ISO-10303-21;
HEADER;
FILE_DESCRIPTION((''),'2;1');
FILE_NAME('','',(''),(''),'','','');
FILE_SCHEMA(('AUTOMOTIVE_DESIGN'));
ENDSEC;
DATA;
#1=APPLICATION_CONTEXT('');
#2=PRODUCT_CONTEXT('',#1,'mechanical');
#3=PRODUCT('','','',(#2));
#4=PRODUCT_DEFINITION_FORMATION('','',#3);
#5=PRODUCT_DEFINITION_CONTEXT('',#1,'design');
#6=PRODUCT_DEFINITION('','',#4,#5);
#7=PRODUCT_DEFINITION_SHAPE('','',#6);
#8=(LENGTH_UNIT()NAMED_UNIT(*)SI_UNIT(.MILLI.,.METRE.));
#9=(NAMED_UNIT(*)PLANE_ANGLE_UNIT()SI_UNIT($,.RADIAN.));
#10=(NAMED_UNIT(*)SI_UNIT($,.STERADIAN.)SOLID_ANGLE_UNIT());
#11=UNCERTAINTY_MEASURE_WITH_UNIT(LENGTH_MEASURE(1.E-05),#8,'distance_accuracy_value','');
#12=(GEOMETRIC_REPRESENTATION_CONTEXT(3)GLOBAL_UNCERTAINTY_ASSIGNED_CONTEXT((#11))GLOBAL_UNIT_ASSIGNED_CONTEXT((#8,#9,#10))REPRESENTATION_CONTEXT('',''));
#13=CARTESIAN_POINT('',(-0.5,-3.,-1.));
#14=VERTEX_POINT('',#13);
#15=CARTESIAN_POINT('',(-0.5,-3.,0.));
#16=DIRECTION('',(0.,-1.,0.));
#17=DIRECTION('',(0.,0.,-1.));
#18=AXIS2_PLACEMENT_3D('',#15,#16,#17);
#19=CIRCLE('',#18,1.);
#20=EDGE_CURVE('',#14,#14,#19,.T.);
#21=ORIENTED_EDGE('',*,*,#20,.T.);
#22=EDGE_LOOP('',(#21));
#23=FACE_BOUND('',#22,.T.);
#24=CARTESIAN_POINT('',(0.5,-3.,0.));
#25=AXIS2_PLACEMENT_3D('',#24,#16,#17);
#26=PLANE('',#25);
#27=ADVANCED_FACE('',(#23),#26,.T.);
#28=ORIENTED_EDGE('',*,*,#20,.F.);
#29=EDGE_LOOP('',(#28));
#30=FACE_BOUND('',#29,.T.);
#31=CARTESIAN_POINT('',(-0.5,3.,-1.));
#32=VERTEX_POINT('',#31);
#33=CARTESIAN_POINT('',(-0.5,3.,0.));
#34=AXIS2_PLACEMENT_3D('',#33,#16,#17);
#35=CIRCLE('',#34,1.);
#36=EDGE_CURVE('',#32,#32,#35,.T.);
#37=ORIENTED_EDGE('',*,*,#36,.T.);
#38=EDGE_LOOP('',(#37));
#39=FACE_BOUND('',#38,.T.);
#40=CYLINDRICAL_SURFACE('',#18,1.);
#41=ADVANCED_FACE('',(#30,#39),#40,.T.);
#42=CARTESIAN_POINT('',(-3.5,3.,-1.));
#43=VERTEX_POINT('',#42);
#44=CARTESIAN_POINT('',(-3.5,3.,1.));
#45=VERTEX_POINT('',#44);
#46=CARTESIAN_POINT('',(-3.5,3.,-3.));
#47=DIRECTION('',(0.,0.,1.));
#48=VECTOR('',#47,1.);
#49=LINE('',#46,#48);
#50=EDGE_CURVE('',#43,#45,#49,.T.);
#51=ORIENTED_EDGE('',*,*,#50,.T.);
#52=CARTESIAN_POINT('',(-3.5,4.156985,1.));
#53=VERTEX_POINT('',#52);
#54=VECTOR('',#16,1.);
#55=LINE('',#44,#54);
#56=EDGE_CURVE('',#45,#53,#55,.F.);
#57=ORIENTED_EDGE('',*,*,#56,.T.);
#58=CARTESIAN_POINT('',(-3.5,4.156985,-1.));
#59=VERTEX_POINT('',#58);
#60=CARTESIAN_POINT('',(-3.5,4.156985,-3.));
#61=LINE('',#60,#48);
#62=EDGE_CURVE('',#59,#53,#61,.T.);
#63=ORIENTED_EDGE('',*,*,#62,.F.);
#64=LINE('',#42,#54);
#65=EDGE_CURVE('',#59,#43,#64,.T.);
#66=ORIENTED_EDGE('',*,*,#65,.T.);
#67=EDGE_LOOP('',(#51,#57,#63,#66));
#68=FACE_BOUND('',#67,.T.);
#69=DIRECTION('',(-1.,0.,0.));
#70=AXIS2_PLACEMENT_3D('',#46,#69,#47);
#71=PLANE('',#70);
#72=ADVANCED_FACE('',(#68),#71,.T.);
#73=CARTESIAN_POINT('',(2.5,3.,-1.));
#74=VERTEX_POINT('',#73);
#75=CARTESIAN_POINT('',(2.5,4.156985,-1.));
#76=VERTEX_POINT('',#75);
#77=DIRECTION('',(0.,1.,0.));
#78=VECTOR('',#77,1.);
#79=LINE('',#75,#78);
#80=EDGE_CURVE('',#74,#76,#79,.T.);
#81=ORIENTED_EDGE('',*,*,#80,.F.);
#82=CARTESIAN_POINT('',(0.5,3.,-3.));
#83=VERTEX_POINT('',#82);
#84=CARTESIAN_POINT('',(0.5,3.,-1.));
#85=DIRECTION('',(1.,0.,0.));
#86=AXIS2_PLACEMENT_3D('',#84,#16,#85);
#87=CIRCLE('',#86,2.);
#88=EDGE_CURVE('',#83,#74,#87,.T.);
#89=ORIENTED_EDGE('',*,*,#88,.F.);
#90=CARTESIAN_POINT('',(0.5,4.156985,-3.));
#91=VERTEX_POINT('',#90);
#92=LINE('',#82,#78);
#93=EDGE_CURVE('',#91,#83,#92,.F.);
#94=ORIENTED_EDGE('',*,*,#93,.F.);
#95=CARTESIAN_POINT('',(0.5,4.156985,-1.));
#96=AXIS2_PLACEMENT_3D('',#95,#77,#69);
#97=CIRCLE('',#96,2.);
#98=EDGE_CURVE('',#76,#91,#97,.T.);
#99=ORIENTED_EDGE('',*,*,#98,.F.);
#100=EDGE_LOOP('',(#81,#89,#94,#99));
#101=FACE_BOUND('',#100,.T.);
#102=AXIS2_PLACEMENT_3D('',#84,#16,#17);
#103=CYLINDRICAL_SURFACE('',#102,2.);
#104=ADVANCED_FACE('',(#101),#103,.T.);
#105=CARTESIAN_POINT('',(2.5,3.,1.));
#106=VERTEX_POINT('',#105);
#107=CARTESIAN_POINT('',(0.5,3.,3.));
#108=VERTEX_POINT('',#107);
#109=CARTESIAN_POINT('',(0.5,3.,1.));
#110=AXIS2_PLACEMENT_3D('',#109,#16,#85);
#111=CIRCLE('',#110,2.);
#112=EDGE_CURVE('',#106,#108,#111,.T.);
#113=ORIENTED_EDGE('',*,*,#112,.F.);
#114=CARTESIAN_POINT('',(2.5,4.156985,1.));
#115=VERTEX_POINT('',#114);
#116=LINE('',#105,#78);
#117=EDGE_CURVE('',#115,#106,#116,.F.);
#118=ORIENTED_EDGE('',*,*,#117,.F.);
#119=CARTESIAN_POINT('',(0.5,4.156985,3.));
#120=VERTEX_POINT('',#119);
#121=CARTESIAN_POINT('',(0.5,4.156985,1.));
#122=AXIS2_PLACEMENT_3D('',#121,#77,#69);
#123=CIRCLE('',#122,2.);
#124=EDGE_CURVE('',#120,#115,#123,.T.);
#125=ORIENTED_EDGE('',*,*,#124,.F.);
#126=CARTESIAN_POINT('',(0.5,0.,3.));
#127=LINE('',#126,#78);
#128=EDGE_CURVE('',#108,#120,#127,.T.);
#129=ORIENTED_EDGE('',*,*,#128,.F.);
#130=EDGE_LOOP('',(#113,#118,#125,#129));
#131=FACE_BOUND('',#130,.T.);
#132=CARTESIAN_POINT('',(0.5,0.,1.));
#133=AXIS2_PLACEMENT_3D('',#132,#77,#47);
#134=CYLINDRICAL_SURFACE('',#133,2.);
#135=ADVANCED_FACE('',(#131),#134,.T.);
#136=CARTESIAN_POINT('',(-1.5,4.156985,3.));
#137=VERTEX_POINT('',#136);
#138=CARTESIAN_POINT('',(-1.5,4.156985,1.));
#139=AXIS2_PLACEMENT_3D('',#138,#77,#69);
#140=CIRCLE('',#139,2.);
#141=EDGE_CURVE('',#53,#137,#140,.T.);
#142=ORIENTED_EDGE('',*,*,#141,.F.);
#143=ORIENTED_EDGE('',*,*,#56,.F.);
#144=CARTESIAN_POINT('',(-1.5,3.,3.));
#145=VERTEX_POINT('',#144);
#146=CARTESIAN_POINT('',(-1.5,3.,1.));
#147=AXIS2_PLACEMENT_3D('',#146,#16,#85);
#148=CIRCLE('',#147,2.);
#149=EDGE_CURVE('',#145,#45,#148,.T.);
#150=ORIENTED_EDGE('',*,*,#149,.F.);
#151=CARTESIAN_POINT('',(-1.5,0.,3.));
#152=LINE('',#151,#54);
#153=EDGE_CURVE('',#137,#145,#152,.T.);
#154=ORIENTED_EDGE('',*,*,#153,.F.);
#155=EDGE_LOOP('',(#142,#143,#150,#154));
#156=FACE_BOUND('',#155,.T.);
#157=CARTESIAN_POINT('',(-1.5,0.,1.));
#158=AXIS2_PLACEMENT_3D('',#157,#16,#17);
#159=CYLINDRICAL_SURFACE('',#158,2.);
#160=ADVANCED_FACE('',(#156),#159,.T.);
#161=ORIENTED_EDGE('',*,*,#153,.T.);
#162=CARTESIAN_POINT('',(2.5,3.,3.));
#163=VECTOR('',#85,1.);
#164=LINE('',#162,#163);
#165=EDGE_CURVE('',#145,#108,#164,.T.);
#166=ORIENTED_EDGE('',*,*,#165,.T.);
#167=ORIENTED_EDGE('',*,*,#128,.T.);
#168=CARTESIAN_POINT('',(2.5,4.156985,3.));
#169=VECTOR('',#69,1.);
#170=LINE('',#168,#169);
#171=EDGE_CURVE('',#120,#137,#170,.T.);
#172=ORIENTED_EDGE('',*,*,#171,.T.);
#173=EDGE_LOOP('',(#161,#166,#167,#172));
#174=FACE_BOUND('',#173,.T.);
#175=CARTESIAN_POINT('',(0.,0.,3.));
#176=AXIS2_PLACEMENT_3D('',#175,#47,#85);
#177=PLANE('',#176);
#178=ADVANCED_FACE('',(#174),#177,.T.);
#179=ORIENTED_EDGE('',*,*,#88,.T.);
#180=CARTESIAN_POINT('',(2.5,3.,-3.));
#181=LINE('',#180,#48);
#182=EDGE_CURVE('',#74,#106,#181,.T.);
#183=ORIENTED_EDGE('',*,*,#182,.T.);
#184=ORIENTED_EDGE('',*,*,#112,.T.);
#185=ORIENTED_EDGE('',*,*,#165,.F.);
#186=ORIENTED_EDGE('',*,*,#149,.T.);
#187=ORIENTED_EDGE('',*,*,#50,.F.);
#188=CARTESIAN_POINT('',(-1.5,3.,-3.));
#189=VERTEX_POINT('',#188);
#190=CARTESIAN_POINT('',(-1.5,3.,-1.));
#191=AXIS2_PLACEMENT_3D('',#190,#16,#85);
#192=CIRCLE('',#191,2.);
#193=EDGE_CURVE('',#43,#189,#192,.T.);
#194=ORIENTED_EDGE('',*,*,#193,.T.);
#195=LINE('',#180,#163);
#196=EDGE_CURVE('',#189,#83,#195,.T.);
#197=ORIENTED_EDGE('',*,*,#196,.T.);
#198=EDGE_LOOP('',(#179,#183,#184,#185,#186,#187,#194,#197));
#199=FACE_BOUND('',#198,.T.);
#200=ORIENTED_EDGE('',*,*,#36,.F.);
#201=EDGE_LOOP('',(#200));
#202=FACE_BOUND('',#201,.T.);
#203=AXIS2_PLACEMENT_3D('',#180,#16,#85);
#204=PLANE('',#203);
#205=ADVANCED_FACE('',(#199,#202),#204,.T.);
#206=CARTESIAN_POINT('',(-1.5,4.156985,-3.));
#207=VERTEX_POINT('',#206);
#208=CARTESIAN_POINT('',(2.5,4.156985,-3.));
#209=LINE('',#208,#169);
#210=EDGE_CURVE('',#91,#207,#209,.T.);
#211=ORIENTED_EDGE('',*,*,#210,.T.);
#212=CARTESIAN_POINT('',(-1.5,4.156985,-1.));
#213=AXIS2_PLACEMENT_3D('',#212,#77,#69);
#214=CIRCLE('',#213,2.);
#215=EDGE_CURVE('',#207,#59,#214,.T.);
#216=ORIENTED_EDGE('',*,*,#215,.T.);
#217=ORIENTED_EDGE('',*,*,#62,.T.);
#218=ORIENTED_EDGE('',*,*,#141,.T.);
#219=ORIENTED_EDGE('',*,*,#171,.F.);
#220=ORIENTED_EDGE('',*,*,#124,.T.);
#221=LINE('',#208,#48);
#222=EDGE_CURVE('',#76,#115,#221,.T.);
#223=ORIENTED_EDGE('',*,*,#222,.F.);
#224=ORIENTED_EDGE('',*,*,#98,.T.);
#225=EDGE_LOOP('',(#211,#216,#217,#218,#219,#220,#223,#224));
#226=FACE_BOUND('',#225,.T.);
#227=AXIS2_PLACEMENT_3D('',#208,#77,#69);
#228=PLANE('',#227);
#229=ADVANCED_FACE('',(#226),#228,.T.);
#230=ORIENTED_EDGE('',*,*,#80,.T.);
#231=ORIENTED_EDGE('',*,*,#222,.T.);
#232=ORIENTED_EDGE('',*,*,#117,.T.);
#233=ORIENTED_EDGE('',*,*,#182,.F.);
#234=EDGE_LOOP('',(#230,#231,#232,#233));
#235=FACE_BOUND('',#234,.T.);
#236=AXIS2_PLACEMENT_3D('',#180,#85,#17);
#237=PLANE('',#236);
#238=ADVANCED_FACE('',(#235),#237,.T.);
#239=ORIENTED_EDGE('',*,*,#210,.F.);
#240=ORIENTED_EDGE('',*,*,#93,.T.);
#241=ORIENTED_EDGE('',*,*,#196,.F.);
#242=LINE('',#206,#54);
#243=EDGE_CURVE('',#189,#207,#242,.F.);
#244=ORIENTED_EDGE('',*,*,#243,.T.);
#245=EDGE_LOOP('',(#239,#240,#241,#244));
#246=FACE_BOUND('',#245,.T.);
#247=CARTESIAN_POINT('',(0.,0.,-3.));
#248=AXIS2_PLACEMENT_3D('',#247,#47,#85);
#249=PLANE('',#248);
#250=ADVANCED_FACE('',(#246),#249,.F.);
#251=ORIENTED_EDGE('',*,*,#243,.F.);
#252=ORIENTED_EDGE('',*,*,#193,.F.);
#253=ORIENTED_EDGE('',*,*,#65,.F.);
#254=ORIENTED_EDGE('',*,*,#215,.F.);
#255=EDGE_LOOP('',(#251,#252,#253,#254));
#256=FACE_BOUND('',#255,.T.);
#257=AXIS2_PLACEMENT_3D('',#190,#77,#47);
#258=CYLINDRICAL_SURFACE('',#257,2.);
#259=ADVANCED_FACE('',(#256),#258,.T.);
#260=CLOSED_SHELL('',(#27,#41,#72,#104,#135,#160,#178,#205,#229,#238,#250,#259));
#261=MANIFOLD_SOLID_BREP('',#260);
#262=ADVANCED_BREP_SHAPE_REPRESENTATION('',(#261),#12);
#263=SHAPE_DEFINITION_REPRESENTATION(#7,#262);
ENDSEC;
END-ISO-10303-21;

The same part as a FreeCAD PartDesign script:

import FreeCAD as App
import Part
import Sketcher
from FreeCAD import Vector
Q = App.Units.Quantity


def edges_at(feature, points):
    """Names of the edges that pass closest to the given points."""
    edges = feature.Shape.Edges
    near = lambda p: min(range(len(edges)), key=lambda i: edges[i].distToShape(Part.Vertex(*p))[0])
    return sorted({f"Edge{near(p) + 1}" for p in points})

doc = App.newDocument("Part")
params = doc.addObject("Spreadsheet::Sheet", "Params")
for row, (alias, value) in enumerate([
    ("sketch1_width", "1 mm"),
    ("sketch1_height", "6 mm"),
    ("revolution_angle", "360 deg"),
    ("sketch2_width", "6 mm"),
    ("pad1_length", "3 mm"),
    ("pad1_length2", "3 mm"),
    ("fillet_radius", "2 mm"),
], start=1):
    params.set(f"A{row}", alias)
    params.set(f"B{row}", "=" + value)
    params.setAlias(f"B{row}", alias)

body = doc.addObject("PartDesign::Body", "Body")

# Sketch on XY plane
sketch1 = body.newObject("Sketcher::SketchObject", "Sketch")
sketch1.AttachmentSupport = (doc.getObject("XY_Plane"), [""])
sketch1.MapMode = "FlatFace"
sketch1.addGeometry([
    Part.LineSegment(Vector(-0.5, 3, 0), Vector(-0.5, -3, 0)),
    Part.LineSegment(Vector(-0.5, -3, 0), Vector(0.5, -3, 0)),
    Part.LineSegment(Vector(0.5, -3, 0), Vector(0.5, 3, 0)),
    Part.LineSegment(Vector(0.5, 3, 0), Vector(-0.5, 3, 0)),
], False)
sketch1.addGeometry(Part.LineSegment(Vector(-0.5, -3, 0), Vector(-0.5, 3, 0)), True)  # axis
sketch1.addConstraint([
    Sketcher.Constraint("Coincident", 0, 2, 1, 1),
    Sketcher.Constraint("Coincident", 1, 2, 2, 1),
    Sketcher.Constraint("Coincident", 2, 2, 3, 1),
    Sketcher.Constraint("Coincident", 3, 2, 0, 1),
    Sketcher.Constraint("Vertical", 0),
    Sketcher.Constraint("Horizontal", 1),
    Sketcher.Constraint("Vertical", 2),
    Sketcher.Constraint("Horizontal", 3),
    Sketcher.Constraint("Vertical", 4),
    Sketcher.Constraint("Coincident", 4, 1, 0, 2),
    Sketcher.Constraint("Symmetric", 0, 2, 2, 2, -1, 1),
    Sketcher.Constraint("Horizontal", 2, 2, 4, 2),
    Sketcher.Constraint("DistanceX", 1, 1, 1, 2, Q("1 mm")),
    Sketcher.Constraint("DistanceY", 0, 2, 0, 1, Q("6 mm")),
])
sketch1.setExpression("Constraints[12]", "Params.sketch1_width")
sketch1.setExpression("Constraints[13]", "Params.sketch1_height")
revolution = body.newObject("PartDesign::Revolution", "Revolution")
revolution.Profile = sketch1
revolution.ReferenceAxis = (sketch1, ["Axis0"])
revolution.setExpression("Angle", "Params.revolution_angle")

# Sketch on XY plane
sketch2 = body.newObject("Sketcher::SketchObject", "Sketch001")
sketch2.AttachmentSupport = (doc.getObject("XY_Plane"), [""])
sketch2.MapMode = "FlatFace"
sketch2.addGeometry([
    Part.LineSegment(Vector(-3.5, 4.2, 0), Vector(-3.5, 3, 0)),
    Part.LineSegment(Vector(-3.5, 3, 0), Vector(2.5, 3, 0)),
    Part.LineSegment(Vector(2.5, 3, 0), Vector(2.5, 4.2, 0)),
    Part.LineSegment(Vector(2.5, 4.2, 0), Vector(-3.5, 4.2, 0)),
], False)
sketch2.addConstraint([
    Sketcher.Constraint("Coincident", 0, 2, 1, 1),
    Sketcher.Constraint("Coincident", 1, 2, 2, 1),
    Sketcher.Constraint("Coincident", 2, 2, 3, 1),
    Sketcher.Constraint("Coincident", 3, 2, 0, 1),
    Sketcher.Constraint("Vertical", 0),
    Sketcher.Constraint("Horizontal", 1),
    Sketcher.Constraint("Vertical", 2),
    Sketcher.Constraint("Horizontal", 3),
    Sketcher.Constraint("DistanceX", 1, 1, 1, 2, Q("6 mm")),
    Sketcher.Constraint("DistanceY", -1, 1, 0, 2, Q("3 mm")),
    Sketcher.Constraint("DistanceX", 0, 2, -1, 1, Q("3.5 mm")),
    Sketcher.Constraint("DistanceY", 0, 2, 0, 1, Q("1.156985 mm")),
])
sketch2.setExpression("Constraints[8]", "Params.sketch2_width")
pad1 = body.newObject("PartDesign::Pad", "Pad")
pad1.Profile = sketch2
pad1.Type = "TwoLengths"
pad1.setExpression("Length", "Params.pad1_length")
pad1.setExpression("Length2", "Params.pad1_length2")
doc.recompute()

fillet = body.newObject("PartDesign::Fillet", "Fillet")
fillet.Base = (pad1, edges_at(pad1, [
    (-3.5, 3.578, -3),
    (2.5, 3.578, -3),
    (-3.5, 3.578, 3),
    (2.5, 3.578, 3),
]))
fillet.setExpression("Radius", "Params.fillet_radius")

doc.recompute()
